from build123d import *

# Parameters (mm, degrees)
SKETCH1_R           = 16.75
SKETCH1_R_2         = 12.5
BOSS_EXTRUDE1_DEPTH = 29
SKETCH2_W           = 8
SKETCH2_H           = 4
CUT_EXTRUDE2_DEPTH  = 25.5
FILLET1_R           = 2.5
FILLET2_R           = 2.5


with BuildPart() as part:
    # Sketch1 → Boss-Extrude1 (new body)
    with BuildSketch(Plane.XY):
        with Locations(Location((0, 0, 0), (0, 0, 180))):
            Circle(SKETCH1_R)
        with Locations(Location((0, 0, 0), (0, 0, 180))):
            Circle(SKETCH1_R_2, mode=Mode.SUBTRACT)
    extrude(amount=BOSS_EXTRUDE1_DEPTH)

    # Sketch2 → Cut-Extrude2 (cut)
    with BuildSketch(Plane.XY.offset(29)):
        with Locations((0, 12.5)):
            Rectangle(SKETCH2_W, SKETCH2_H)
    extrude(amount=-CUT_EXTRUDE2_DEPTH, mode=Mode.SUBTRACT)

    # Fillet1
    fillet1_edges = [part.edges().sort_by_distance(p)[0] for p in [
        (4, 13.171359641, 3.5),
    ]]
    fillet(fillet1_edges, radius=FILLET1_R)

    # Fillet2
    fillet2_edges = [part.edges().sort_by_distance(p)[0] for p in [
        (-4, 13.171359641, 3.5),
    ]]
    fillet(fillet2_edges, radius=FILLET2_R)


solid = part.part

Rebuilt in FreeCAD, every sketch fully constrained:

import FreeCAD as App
import Part
import Sketcher

V = App.Vector


def edges_at(feature, points):
    """Names of the edges that pass closest to the given points."""
    edges = feature.Shape.Edges
    near = lambda p: min(range(len(edges)), key=lambda i: edges[i].distToShape(Part.Vertex(*p))[0])
    return sorted({f"Edge{near(p) + 1}" for p in points})

doc = App.newDocument("Part")
body = doc.addObject("PartDesign::Body", "Body")

sketch1 = body.newObject("Sketcher::SketchObject", "Sketch")
sketch1.AttachmentSupport = (doc.getObject("XY_Plane"), [""])
sketch1.MapMode = "FlatFace"
sketch1.addGeometry([
    Part.Circle(V(0, 0, 0), V(0, 0, 1), 17),
    Part.Circle(V(0, 0, 0), V(0, 0, 1), 12),
], False)
sketch1.addConstraint([
    Sketcher.Constraint("Coincident", 0, 3, -1, 1),
    Sketcher.Constraint("Coincident", 1, 3, -1, 1),
    Sketcher.Constraint("Diameter", 1, 25.0),
    Sketcher.Constraint("Diameter", 0, 33.5),
])
pad1 = body.newObject("PartDesign::Pad", "Pad")
pad1.Profile = sketch1
pad1.Length = 29

sketch2 = body.newObject("Sketcher::SketchObject", "Sketch001")
sketch2.AttachmentSupport = (doc.getObject("XY_Plane"), [""])
sketch2.MapMode = "FlatFace"
sketch2.AttachmentOffset = App.Placement(V(0, 0, 29), App.Rotation())
sketch2.addGeometry([
    Part.LineSegment(V(-4, 14.5, 0), V(-4, 10.5, 0)),
    Part.LineSegment(V(-4, 10.5, 0), V(4, 10.5, 0)),
    Part.LineSegment(V(4, 10.5, 0), V(4, 14.5, 0)),
    Part.LineSegment(V(4, 14.5, 0), V(-4, 14.5, 0)),
], False)
sketch2.addConstraint([
    Sketcher.Constraint("Coincident", 0, 2, 1, 1),
    Sketcher.Constraint("Coincident", 1, 2, 2, 1),
    Sketcher.Constraint("Coincident", 2, 2, 3, 1),
    Sketcher.Constraint("Coincident", 3, 2, 0, 1),
    Sketcher.Constraint("Vertical", 0),
    Sketcher.Constraint("Horizontal", 1),
    Sketcher.Constraint("Vertical", 2),
    Sketcher.Constraint("Horizontal", 3),
    Sketcher.Constraint("DistanceX", 1, 1, 1, 2, 8.0),
    Sketcher.Constraint("DistanceY", 0, 2, 0, 1, 4.0),
    Sketcher.Constraint("DistanceX", 0, 2, -1, 1, 4.0),
    Sketcher.Constraint("DistanceY", -1, 1, 0, 2, 10.5),
])
pocket1 = body.newObject("PartDesign::Pocket", "Pocket")
pocket1.Profile = sketch2
pocket1.Length = 25.5
doc.recompute()

fillet = body.newObject("PartDesign::Fillet", "Fillet")
fillet.Base = (pocket1, edges_at(pocket1, [(4, 13.171, 3.5)]))
fillet.Radius = 2.5
doc.recompute()

fillet2 = body.newObject("PartDesign::Fillet", "Fillet001")
fillet2.Base = (fillet, edges_at(fillet, [(-4, 13.171, 3.5)]))
fillet2.Radius = 2.5

doc.recompute()
